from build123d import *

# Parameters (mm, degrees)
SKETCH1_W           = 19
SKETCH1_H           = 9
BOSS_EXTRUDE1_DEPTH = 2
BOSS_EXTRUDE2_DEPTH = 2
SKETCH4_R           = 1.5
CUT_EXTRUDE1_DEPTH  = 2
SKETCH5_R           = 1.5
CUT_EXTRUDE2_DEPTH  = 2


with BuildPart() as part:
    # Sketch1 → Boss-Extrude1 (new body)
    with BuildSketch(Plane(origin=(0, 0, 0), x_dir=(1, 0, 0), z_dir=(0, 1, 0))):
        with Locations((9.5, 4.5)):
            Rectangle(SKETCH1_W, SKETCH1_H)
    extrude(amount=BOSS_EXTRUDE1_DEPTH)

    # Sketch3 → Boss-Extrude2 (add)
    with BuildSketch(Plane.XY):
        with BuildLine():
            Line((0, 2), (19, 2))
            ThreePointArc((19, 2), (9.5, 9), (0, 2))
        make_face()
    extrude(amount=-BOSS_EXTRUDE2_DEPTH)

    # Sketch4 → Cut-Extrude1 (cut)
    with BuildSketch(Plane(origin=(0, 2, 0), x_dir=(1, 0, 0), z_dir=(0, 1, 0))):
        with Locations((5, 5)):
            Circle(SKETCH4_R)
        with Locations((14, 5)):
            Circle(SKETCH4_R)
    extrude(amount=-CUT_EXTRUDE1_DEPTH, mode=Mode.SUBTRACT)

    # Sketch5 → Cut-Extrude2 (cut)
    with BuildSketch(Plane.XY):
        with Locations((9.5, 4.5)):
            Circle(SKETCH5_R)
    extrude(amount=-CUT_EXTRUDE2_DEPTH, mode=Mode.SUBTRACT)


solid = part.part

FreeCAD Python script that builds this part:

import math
import FreeCAD as App
import Part
import Sketcher
Q = App.Units.Quantity


def add_polygon(sketch, points):
    """Adds a closed chain of lines whose ends are joined by coincident constraints."""
    first, n = sketch.GeometryCount, len(points)
    for a, b in zip(points, points[1:] + points[:1]):
        sketch.addGeometry(Part.LineSegment(App.Vector(*a, 0), App.Vector(*b, 0)), False)
    for i in range(n):
        sketch.addConstraint(Sketcher.Constraint("Coincident", first + i, 2, first + (i + 1) % n, 1))

doc = App.newDocument("Part")
body = doc.addObject("PartDesign::Body", "Body")

# Sketch on XZ plane
sketch1 = doc.addObject("Sketcher::SketchObject", "Sketch")
body.addObject(sketch1)
sketch1.AttachmentSupport = (doc.XZ_Plane, [""])
sketch1.MapMode = "FlatFace"
add_polygon(sketch1, [(0, -9), (0, 0), (19, 0), (19, -9)])  # lines 0-3
sketch1.addConstraint([
    Sketcher.Constraint("Vertical", 0),
    Sketcher.Constraint("Horizontal", 1),
    Sketcher.Constraint("Vertical", 2),
    Sketcher.Constraint("Horizontal", 3),
    Sketcher.Constraint("Coincident", 0, 2, -1, 1),
    Sketcher.Constraint("DistanceX", 1, 1, 1, 2, Q("19 mm")),
    Sketcher.Constraint("DistanceY", 0, 1, 0, 2, Q("9 mm")),
])
pad1 = doc.addObject("PartDesign::Pad", "Pad")
body.addObject(pad1)
pad1.Profile = sketch1
pad1.Length = 2
pad1.Reversed = True

# Sketch on XY plane
sketch2 = doc.addObject("Sketcher::SketchObject", "Sketch001")
body.addObject(sketch2)
sketch2.AttachmentSupport = (doc.XY_Plane, [""])
sketch2.MapMode = "FlatFace"
sketch2.addGeometry([
    Part.LineSegment(App.Vector(0, 2, 0), App.Vector(19, 2, 0)),
    Part.ArcOfCircle(Part.Circle(App.Vector(9.5, -0.946429, 0), App.Vector(0, 0, 1), 9.946429), math.radians(17.231296), math.radians(162.768704)),
], False)
sketch2.addConstraint([
    Sketcher.Constraint("Coincident", 0, 1, 1, 2),
    Sketcher.Constraint("Coincident", 1, 1, 0, 2),
    Sketcher.Constraint("Horizontal", 0),
    Sketcher.Constraint("PointOnObject", 0, 1, -2),
    Sketcher.Constraint("DistanceX", 0, 1, 0, 2, Q("19 mm")),
    Sketcher.Constraint("DistanceY", -1, 1, 0, 1, Q("2 mm")),
    Sketcher.Constraint("Radius", 1, Q("9.946429 mm")),
])
pad2 = doc.addObject("PartDesign::Pad", "Pad001")
body.addObject(pad2)
pad2.Profile = sketch2
pad2.Length = 2
pad2.Reversed = True

# Sketch on XZ plane
sketch3 = doc.addObject("Sketcher::SketchObject", "Sketch002")
body.addObject(sketch3)
sketch3.AttachmentSupport = (doc.XZ_Plane, [""])
sketch3.MapMode = "FlatFace"
sketch3.AttachmentOffset = App.Placement(App.Vector(0, 0, -2), App.Rotation())
sketch3.addGeometry([
    Part.Circle(App.Vector(5, -5, 0), App.Vector(0, 0, 1), 1.5),
    Part.Circle(App.Vector(14, -5, 0), App.Vector(0, 0, 1), 1.5),
], False)
sketch3.addConstraint([
    Sketcher.Constraint("Equal", 0, 1),
    Sketcher.Constraint("Horizontal", 0, 3, 1, 3),
    Sketcher.Constraint("Diameter", 0, Q("3 mm")),
    Sketcher.Constraint("DistanceX", -1, 1, 0, 3, Q("5 mm")),
    Sketcher.Constraint("DistanceY", 0, 3, -1, 1, Q("5 mm")),
    Sketcher.Constraint("DistanceX", -1, 1, 1, 3, Q("14 mm")),
])
pocket1 = doc.addObject("PartDesign::Pocket", "Pocket")
body.addObject(pocket1)
pocket1.Profile = sketch3
pocket1.Length = 2
pocket1.Reversed = True

# Sketch on XY plane
sketch4 = doc.addObject("Sketcher::SketchObject", "Sketch003")
body.addObject(sketch4)
sketch4.AttachmentSupport = (doc.XY_Plane, [""])
sketch4.MapMode = "FlatFace"
sketch4.addGeometry(Part.Circle(App.Vector(9.5, 4.5, 0), App.Vector(0, 0, 1), 1.5), False)
sketch4.addConstraint([
    Sketcher.Constraint("Diameter", 0, Q("3 mm")),
    Sketcher.Constraint("DistanceX", -1, 1, 0, 3, Q("9.5 mm")),
    Sketcher.Constraint("DistanceY", -1, 1, 0, 3, Q("4.5 mm")),
])
pocket2 = doc.addObject("PartDesign::Pocket", "Pocket001")
body.addObject(pocket2)
pocket2.Profile = sketch4
pocket2.Length = 2

doc.recompute()
